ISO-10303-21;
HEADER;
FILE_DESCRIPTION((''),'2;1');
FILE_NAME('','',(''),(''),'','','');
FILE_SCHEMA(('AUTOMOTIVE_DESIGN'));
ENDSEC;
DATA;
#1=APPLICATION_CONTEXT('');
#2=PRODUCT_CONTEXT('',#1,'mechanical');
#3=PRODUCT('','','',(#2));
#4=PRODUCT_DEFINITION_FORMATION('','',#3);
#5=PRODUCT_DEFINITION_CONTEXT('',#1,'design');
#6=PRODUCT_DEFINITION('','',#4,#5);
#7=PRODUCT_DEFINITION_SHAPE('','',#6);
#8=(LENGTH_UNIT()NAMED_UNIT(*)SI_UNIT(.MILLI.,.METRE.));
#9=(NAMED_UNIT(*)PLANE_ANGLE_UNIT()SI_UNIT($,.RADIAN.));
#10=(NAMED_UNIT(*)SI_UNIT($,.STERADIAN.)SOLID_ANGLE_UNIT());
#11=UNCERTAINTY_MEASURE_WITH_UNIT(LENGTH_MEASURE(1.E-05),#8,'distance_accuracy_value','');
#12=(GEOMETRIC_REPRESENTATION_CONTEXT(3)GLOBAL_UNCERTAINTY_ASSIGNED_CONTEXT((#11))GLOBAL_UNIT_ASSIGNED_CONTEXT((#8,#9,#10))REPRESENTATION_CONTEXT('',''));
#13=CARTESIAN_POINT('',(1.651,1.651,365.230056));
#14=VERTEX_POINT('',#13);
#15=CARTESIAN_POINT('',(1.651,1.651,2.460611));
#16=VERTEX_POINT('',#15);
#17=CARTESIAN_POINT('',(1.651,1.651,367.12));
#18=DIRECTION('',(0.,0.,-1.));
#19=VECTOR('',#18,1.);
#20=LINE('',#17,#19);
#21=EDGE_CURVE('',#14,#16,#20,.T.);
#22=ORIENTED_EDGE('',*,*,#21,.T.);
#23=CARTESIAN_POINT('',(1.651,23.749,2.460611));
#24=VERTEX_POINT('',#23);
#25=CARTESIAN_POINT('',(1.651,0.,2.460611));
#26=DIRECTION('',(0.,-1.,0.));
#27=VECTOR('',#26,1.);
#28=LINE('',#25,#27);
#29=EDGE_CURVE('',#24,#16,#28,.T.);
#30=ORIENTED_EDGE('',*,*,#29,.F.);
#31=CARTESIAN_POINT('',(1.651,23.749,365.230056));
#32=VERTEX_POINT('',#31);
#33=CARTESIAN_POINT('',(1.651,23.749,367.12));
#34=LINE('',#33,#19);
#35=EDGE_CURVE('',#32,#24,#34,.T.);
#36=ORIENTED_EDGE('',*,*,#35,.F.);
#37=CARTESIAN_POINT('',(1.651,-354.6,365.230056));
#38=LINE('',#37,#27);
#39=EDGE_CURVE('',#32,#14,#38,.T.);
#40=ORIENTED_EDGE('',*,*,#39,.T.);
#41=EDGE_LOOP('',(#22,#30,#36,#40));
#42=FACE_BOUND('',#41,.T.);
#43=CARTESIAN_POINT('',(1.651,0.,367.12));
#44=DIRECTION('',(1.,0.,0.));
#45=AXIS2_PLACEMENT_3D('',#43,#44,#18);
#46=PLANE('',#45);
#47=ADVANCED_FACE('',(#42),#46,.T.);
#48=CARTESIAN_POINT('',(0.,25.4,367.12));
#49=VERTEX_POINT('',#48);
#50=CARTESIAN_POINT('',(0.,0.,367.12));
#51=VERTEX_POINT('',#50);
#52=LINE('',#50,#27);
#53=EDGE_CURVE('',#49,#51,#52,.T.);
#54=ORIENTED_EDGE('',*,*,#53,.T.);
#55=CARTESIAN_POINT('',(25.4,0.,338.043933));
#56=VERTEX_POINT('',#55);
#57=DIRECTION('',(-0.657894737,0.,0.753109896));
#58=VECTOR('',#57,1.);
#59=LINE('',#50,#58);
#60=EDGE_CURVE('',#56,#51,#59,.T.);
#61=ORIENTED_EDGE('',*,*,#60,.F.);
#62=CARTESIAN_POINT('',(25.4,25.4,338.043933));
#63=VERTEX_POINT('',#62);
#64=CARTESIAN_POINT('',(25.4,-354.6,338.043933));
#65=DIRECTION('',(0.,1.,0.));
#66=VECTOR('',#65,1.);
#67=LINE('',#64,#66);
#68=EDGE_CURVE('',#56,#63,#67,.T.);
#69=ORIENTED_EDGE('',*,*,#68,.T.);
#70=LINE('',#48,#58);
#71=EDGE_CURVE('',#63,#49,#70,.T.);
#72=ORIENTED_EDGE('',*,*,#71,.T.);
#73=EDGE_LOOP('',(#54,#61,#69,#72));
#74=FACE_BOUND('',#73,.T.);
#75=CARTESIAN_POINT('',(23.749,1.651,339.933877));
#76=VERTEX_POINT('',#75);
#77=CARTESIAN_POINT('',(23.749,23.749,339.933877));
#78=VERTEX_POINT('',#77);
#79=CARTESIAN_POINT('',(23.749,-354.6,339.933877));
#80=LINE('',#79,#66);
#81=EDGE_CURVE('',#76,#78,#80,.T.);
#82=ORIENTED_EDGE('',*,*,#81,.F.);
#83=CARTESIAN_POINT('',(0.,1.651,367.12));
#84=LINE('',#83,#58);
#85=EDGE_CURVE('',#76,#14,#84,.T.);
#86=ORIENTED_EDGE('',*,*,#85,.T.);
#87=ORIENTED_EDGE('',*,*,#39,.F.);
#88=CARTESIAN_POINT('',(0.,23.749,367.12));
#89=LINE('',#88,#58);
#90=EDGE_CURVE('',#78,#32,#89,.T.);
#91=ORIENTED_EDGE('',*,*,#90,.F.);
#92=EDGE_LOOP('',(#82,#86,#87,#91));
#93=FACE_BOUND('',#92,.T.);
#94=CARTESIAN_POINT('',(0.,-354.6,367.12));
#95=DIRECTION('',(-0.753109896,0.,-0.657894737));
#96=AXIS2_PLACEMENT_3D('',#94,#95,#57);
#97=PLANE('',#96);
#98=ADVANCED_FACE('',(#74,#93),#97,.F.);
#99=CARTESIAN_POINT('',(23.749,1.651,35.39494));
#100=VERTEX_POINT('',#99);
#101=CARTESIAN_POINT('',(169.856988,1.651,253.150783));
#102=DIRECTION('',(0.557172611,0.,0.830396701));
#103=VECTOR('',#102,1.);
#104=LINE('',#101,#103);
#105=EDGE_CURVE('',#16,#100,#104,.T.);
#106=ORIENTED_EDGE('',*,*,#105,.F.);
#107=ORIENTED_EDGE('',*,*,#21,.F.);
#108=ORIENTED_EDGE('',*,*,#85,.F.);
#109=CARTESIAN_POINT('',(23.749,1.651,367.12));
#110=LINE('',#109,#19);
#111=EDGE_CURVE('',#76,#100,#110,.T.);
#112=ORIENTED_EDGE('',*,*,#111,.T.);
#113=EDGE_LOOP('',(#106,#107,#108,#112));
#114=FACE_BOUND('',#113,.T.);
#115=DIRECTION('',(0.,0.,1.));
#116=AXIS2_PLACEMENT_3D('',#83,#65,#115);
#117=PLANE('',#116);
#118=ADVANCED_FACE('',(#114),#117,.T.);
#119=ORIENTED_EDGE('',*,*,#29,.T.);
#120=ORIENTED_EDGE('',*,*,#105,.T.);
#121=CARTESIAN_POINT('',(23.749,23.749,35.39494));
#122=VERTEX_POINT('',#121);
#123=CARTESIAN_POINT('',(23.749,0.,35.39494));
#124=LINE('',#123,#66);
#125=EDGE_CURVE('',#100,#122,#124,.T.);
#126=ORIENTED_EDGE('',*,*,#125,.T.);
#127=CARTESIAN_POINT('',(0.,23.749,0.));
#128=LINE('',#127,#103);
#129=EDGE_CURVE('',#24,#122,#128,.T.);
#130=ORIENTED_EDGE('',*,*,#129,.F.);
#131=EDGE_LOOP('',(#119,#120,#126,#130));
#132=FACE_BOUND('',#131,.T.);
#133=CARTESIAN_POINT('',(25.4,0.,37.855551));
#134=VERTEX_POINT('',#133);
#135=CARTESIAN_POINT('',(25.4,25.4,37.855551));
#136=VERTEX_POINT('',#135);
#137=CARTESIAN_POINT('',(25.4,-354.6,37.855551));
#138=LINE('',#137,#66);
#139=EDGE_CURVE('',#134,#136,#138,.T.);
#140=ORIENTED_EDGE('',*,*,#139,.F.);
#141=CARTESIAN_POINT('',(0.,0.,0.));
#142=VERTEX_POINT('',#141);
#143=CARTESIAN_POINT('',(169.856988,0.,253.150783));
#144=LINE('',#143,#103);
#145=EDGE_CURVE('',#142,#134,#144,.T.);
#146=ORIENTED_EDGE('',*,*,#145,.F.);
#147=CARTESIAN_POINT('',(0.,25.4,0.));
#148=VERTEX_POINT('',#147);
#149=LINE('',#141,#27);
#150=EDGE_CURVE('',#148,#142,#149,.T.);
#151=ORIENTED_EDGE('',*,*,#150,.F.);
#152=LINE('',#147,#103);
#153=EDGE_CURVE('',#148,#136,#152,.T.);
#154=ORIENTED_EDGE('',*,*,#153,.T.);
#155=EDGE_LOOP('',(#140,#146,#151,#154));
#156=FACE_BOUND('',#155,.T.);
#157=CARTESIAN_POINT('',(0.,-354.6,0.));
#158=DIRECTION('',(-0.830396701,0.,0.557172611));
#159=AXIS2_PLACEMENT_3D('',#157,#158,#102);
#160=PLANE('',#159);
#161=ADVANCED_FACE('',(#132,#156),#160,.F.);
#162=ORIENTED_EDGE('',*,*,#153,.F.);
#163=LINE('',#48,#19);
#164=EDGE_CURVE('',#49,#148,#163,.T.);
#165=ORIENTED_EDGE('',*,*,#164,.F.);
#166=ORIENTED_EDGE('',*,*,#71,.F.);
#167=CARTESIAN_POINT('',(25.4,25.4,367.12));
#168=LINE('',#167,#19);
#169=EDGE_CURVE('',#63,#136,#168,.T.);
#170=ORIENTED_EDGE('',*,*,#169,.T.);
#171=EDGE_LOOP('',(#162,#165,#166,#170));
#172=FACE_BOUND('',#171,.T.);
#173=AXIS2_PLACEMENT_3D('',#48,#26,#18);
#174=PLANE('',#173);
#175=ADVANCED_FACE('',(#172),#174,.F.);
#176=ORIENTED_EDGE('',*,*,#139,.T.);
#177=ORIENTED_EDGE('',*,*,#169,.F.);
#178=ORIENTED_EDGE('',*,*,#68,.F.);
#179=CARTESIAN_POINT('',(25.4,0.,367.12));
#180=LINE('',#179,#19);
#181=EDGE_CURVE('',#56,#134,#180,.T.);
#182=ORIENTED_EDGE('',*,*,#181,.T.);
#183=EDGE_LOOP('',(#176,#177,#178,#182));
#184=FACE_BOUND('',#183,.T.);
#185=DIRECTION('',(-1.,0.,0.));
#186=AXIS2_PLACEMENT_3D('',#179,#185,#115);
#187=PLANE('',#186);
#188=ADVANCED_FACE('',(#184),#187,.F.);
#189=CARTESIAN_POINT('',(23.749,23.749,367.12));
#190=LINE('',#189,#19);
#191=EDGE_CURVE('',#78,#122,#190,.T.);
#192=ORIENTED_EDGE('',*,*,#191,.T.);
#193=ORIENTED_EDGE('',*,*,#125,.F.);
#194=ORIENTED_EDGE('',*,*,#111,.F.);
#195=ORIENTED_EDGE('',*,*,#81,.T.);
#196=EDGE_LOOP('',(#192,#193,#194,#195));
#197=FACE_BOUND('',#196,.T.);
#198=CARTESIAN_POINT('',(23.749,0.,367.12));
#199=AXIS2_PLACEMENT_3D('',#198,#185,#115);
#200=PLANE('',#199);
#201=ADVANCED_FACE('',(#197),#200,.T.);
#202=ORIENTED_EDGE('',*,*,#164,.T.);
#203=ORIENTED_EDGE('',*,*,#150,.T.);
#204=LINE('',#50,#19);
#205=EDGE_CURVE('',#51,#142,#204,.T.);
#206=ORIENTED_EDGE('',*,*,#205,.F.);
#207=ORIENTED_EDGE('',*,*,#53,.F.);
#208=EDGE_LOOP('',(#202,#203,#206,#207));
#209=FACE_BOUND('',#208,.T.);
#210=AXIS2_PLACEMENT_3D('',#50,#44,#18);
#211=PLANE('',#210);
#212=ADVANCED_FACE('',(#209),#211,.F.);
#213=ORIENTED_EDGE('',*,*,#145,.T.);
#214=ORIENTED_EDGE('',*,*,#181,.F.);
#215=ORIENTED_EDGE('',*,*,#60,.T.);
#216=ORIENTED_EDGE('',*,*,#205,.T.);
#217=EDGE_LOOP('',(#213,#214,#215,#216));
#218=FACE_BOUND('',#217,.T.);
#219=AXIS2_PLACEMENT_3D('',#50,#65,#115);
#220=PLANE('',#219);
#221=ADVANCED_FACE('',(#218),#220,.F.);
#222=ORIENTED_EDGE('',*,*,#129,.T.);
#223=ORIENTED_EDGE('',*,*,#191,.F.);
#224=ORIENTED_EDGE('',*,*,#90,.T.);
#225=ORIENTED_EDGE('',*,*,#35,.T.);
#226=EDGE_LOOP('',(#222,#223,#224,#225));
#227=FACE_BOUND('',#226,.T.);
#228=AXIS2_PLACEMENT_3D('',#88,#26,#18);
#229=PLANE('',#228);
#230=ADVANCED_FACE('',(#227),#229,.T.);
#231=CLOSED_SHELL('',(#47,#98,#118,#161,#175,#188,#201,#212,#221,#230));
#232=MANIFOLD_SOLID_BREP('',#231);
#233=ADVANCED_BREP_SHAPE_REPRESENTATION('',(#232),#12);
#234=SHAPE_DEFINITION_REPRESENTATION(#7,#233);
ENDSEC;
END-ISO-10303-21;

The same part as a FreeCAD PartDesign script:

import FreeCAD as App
import Part
import Sketcher

V = App.Vector
Q = App.Units.Quantity


def faces_at(feature, points):
    """Names of the faces that lie closest to the given points."""
    faces = feature.Shape.Faces
    near = lambda p: min(range(len(faces)), key=lambda i: faces[i].distToShape(Part.Vertex(*p))[0])
    return sorted({f"Face{near(p) + 1}" for p in points})

doc = App.newDocument("Part")
body = doc.addObject("PartDesign::Body", "Body")

sketch1 = doc.addObject("Sketcher::SketchObject", "Sketch")
body.addObject(sketch1)
sketch1.AttachmentSupport = (doc.XY_Plane, [""])
sketch1.MapMode = "FlatFace"
sketch1.addGeometry([
    Part.LineSegment(V(0, 25, 0), V(0, 0, 0)),
    Part.LineSegment(V(0, 0, 0), V(25, 0, 0)),
    Part.LineSegment(V(25, 0, 0), V(25, 25, 0)),
    Part.LineSegment(V(25, 25, 0), V(0, 25, 0)),
], False)
sketch1.addConstraint([
    Sketcher.Constraint("Coincident", 0, 2, 1, 1),
    Sketcher.Constraint("Coincident", 1, 2, 2, 1),
    Sketcher.Constraint("Coincident", 2, 2, 3, 1),
    Sketcher.Constraint("Coincident", 3, 2, 0, 1),
    Sketcher.Constraint("Vertical", 0),
    Sketcher.Constraint("Horizontal", 1),
    Sketcher.Constraint("Vertical", 2),
    Sketcher.Constraint("Horizontal", 3),
    Sketcher.Constraint("Coincident", 0, 2, -1, 1),
    Sketcher.Constraint("Equal", 3, 0),
    Sketcher.Constraint("DistanceX", 1, 1, 1, 2, Q("1 in")),
])
pad1 = doc.addObject("PartDesign::Pad", "Pad")
body.addObject(pad1)
pad1.Profile = sketch1
pad1.Length = 367.12

sketch2 = doc.addObject("Sketcher::SketchObject", "Sketch001")
body.addObject(sketch2)
sketch2.AttachmentSupport = (doc.XZ_Plane, [""])
sketch2.MapMode = "FlatFace"
sketch2.AttachmentOffset = App.Placement(V(0, 0, -1 * 25.4), App.Rotation())
sketch2.addGeometry([
    Part.LineSegment(V(0, 0, 0), V(25, 38, 0)),
    Part.LineSegment(V(25, 38, 0), V(25, 0, 0)),
    Part.LineSegment(V(25, 0, 0), V(0, 0, 0)),
], False)
sketch2.addConstraint([
    Sketcher.Constraint("Coincident", 0, 2, 1, 1),
    Sketcher.Constraint("Coincident", 1, 2, 2, 1),
    Sketcher.Constraint("Coincident", 2, 2, 0, 1),
    Sketcher.Constraint("Vertical", 1),
    Sketcher.Constraint("Horizontal", 2),
    Sketcher.Constraint("Coincident", 2, 2, -1, 1),
    Sketcher.Constraint("DistanceX", 2, 2, 2, 1, Q("1 in")),
    Sketcher.Constraint("DistanceY", 1, 2, 1, 1, Q("37.855551 mm")),
])
pocket1 = doc.addObject("PartDesign::Pocket", "Pocket")
body.addObject(pocket1)
pocket1.Profile = sketch2
pocket1.Length = 380
pocket1.Reversed = True

sketch3 = doc.addObject("Sketcher::SketchObject", "Sketch002")
body.addObject(sketch3)
sketch3.AttachmentSupport = (doc.XZ_Plane, [""])
sketch3.MapMode = "FlatFace"
sketch3.AttachmentOffset = App.Placement(V(0, 0, -1 * 25.4), App.Rotation())
sketch3.addGeometry([
    Part.LineSegment(V(25, 338, 0), V(0, 367, 0)),
    Part.LineSegment(V(0, 367, 0), V(25, 367, 0)),
    Part.LineSegment(V(25, 367, 0), V(25, 338, 0)),
], False)
sketch3.addConstraint([
    Sketcher.Constraint("Coincident", 0, 2, 1, 1),
    Sketcher.Constraint("Coincident", 1, 2, 2, 1),
    Sketcher.Constraint("Coincident", 2, 2, 0, 1),
    Sketcher.Constraint("Horizontal", 1),
    Sketcher.Constraint("Vertical", 2),
    Sketcher.Constraint("PointOnObject", 0, 2, -2),
    Sketcher.Constraint("DistanceX", 1, 1, 1, 2, Q("1 in")),
    Sketcher.Constraint("Distance", 0, Q("1.52 in")),
    Sketcher.Constraint("DistanceY", -1, 1, 0, 2, Q("367.12 mm")),
])
pocket2 = doc.addObject("PartDesign::Pocket", "Pocket001")
body.addObject(pocket2)
pocket2.Profile = sketch3
pocket2.Length = 380
pocket2.Reversed = True
doc.recompute()

thickness = doc.addObject("PartDesign::Thickness", "Thickness")
body.addObject(thickness)
thickness.Base = (pocket2, faces_at(pocket2, [(12.7, 12.7, 18.928), (12.7, 12.7, 352.582)]))
thickness.Value = Q("0.065 in")
thickness.Reversed = True
thickness.Join = "Intersection"

doc.recompute()
